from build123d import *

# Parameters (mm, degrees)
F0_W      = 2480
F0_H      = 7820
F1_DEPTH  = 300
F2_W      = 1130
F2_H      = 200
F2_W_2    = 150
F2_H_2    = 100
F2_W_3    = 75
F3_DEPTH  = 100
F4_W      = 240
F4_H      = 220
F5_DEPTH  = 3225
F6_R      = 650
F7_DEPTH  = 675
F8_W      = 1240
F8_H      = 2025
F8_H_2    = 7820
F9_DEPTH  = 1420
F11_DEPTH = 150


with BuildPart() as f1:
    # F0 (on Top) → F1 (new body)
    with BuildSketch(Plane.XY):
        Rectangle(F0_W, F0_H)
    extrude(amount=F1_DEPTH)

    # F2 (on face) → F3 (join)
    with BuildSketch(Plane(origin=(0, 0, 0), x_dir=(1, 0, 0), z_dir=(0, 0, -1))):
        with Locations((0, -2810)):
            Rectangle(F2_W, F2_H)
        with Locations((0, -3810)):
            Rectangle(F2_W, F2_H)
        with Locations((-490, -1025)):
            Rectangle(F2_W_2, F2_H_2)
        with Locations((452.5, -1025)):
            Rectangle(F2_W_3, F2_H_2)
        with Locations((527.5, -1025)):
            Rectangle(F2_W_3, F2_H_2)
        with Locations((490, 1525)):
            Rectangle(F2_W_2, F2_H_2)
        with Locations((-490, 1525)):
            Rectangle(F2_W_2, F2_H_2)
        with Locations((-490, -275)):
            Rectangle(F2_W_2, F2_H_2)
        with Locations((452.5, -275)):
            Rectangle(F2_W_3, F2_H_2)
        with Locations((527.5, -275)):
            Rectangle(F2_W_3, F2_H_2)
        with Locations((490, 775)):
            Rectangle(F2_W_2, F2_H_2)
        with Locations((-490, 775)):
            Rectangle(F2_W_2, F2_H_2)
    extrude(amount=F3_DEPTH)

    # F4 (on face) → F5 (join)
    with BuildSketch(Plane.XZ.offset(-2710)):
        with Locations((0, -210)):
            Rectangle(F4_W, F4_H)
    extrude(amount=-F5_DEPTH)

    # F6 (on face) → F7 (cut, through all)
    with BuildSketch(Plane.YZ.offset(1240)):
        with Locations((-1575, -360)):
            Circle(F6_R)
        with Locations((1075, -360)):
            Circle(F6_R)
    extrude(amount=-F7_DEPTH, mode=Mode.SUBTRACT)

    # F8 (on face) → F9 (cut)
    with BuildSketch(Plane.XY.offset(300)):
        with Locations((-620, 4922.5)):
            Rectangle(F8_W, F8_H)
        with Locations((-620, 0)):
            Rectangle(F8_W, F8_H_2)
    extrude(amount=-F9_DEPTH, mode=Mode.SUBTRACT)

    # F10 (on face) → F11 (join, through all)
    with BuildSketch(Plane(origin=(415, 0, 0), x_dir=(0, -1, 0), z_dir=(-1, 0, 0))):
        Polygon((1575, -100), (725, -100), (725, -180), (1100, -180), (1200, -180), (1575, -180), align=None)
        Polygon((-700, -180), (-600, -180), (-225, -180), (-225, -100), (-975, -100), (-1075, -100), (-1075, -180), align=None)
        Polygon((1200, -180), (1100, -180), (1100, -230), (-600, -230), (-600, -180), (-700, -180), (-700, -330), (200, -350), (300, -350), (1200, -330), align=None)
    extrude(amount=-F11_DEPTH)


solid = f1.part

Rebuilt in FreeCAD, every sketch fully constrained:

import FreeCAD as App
import Part
import Sketcher
from FreeCAD import Vector

doc = App.newDocument("Part")
params = doc.addObject("Spreadsheet::Sheet", "Params")
for row, (alias, value) in enumerate([
    ("sketch1_width", "2480 mm"),
    ("sketch1_height", "7820 mm"),
    ("pad1_length", "300 mm"),
    ("sketch2_width", "1130 mm"),
    ("sketch2_width2", "150 mm"),
    ("sketch2_height", "200 mm"),
    ("sketch2_height2", "100 mm"),
    ("pad2_length", "100 mm"),
    ("sketch3_width", "240 mm"),
    ("sketch3_height", "220 mm"),
    ("pad3_length", "3225 mm"),
    ("sketch4_diameter", "1300 mm"),
    ("pocket1_length", "675 mm"),
    ("sketch5_width", "1240 mm"),
    ("sketch5_height", "9845 mm"),
    ("pocket2_length", "1420 mm"),
    ("sketch6_width", "850 mm"),
    ("sketch6_width2", "375 mm"),
    ("sketch6_width3", "1700 mm"),
    ("sketch6_width4", "100 mm"),
    ("sketch6_height", "80 mm"),
    ("pad4_length", "150 mm"),
], start=1):
    params.set(f"A{row}", alias)
    params.set(f"B{row}", "=" + value)
    params.setAlias(f"B{row}", alias)

body = doc.addObject("PartDesign::Body", "Body")

sketch1 = doc.addObject("Sketcher::SketchObject", "Sketch")
body.addObject(sketch1)
sketch1.AttachmentSupport = (doc.XY_Plane, [""])
sketch1.MapMode = "FlatFace"
sketch1.addGeometry([
    Part.LineSegment(Vector(-1240, 3910, 0), Vector(-1240, -3910, 0)),
    Part.LineSegment(Vector(-1240, -3910, 0), Vector(1240, -3910, 0)),
    Part.LineSegment(Vector(1240, -3910, 0), Vector(1240, 3910, 0)),
    Part.LineSegment(Vector(1240, 3910, 0), Vector(-1240, 3910, 0)),
], False)
sketch1.addConstraint([
    Sketcher.Constraint("Coincident", 0, 2, 1, 1),
    Sketcher.Constraint("Coincident", 1, 2, 2, 1),
    Sketcher.Constraint("Coincident", 2, 2, 3, 1),
    Sketcher.Constraint("Coincident", 3, 2, 0, 1),
    Sketcher.Constraint("Vertical", 0),
    Sketcher.Constraint("Horizontal", 1),
    Sketcher.Constraint("Vertical", 2),
    Sketcher.Constraint("Horizontal", 3),
    Sketcher.Constraint("Symmetric", 0, 2, 2, 2, -1, 1),
    Sketcher.Constraint("DistanceX", 1, 1, 1, 2, 2480.0),
    Sketcher.Constraint("DistanceY", 0, 2, 0, 1, 7820.0),
])
sketch1.setExpression("Constraints[9]", "Params.sketch1_width")
sketch1.setExpression("Constraints[10]", "Params.sketch1_height")
pad1 = doc.addObject("PartDesign::Pad", "Pad")
body.addObject(pad1)
pad1.Profile = sketch1
pad1.setExpression("Length", "Params.pad1_length")

sketch2 = doc.addObject("Sketcher::SketchObject", "Sketch001")
body.addObject(sketch2)
sketch2.AttachmentSupport = (doc.XY_Plane, [""])
sketch2.MapMode = "FlatFace"
sketch2.addGeometry([
    Part.LineSegment(Vector(-565, 2710, 0), Vector(-565, 2910, 0)),
    Part.LineSegment(Vector(-565, 2910, 0), Vector(565, 2910, 0)),
    Part.LineSegment(Vector(565, 2910, 0), Vector(565, 2710, 0)),
    Part.LineSegment(Vector(565, 2710, 0), Vector(-565, 2710, 0)),
    Part.LineSegment(Vector(-565, 3710, 0), Vector(-565, 3910, 0)),
    Part.LineSegment(Vector(-565, 3910, 0), Vector(565, 3910, 0)),
    Part.LineSegment(Vector(565, 3910, 0), Vector(565, 3710, 0)),
    Part.LineSegment(Vector(565, 3710, 0), Vector(-565, 3710, 0)),
    Part.LineSegment(Vector(-565, 975, 0), Vector(-565, 1075, 0)),
    Part.LineSegment(Vector(-565, 1075, 0), Vector(-415, 1075, 0)),
    Part.LineSegment(Vector(-415, 1075, 0), Vector(-415, 975, 0)),
    Part.LineSegment(Vector(-415, 975, 0), Vector(-565, 975, 0)),
    Part.LineSegment(Vector(415, 975, 0), Vector(415, 1075, 0)),
    Part.LineSegment(Vector(415, 1075, 0), Vector(565, 1075, 0)),
    Part.LineSegment(Vector(565, 1075, 0), Vector(565, 975, 0)),
    Part.LineSegment(Vector(565, 975, 0), Vector(415, 975, 0)),
    Part.LineSegment(Vector(415, -1575, 0), Vector(415, -1475, 0)),
    Part.LineSegment(Vector(415, -1475, 0), Vector(565, -1475, 0)),
    Part.LineSegment(Vector(565, -1475, 0), Vector(565, -1575, 0)),
    Part.LineSegment(Vector(565, -1575, 0), Vector(415, -1575, 0)),
    Part.LineSegment(Vector(-565, -1575, 0), Vector(-565, -1475, 0)),
    Part.LineSegment(Vector(-565, -1475, 0), Vector(-415, -1475, 0)),
    Part.LineSegment(Vector(-415, -1475, 0), Vector(-415, -1575, 0)),
    Part.LineSegment(Vector(-415, -1575, 0), Vector(-565, -1575, 0)),
    Part.LineSegment(Vector(-565, 225, 0), Vector(-565, 325, 0)),
    Part.LineSegment(Vector(-565, 325, 0), Vector(-415, 325, 0)),
    Part.LineSegment(Vector(-415, 325, 0), Vector(-415, 225, 0)),
    Part.LineSegment(Vector(-415, 225, 0), Vector(-565, 225, 0)),
    Part.LineSegment(Vector(415, 225, 0), Vector(415, 325, 0)),
    Part.LineSegment(Vector(415, 325, 0), Vector(565, 325, 0)),
    Part.LineSegment(Vector(565, 325, 0), Vector(565, 225, 0)),
    Part.LineSegment(Vector(565, 225, 0), Vector(415, 225, 0)),
    Part.LineSegment(Vector(415, -825, 0), Vector(415, -725, 0)),
    Part.LineSegment(Vector(415, -725, 0), Vector(565, -725, 0)),
    Part.LineSegment(Vector(565, -725, 0), Vector(565, -825, 0)),
    Part.LineSegment(Vector(565, -825, 0), Vector(415, -825, 0)),
    Part.LineSegment(Vector(-565, -825, 0), Vector(-565, -725, 0)),
    Part.LineSegment(Vector(-565, -725, 0), Vector(-415, -725, 0)),
    Part.LineSegment(Vector(-415, -725, 0), Vector(-415, -825, 0)),
    Part.LineSegment(Vector(-415, -825, 0), Vector(-565, -825, 0)),
], False)
sketch2.addConstraint([
    Sketcher.Constraint("Coincident", 0, 2, 1, 1),
    Sketcher.Constraint("Coincident", 1, 2, 2, 1),
    Sketcher.Constraint("Coincident", 2, 2, 3, 1),
    Sketcher.Constraint("Coincident", 3, 2, 0, 1),
    Sketcher.Constraint("Coincident", 4, 2, 5, 1),
    Sketcher.Constraint("Coincident", 5, 2, 6, 1),
    Sketcher.Constraint("Coincident", 6, 2, 7, 1),
    Sketcher.Constraint("Coincident", 7, 2, 4, 1),
    Sketcher.Constraint("Coincident", 8, 2, 9, 1),
    Sketcher.Constraint("Coincident", 9, 2, 10, 1),
    Sketcher.Constraint("Coincident", 10, 2, 11, 1),
    Sketcher.Constraint("Coincident", 11, 2, 8, 1),
    Sketcher.Constraint("Coincident", 12, 2, 13, 1),
    Sketcher.Constraint("Coincident", 13, 2, 14, 1),
    Sketcher.Constraint("Coincident", 14, 2, 15, 1),
    Sketcher.Constraint("Coincident", 15, 2, 12, 1),
    Sketcher.Constraint("Coincident", 16, 2, 17, 1),
    Sketcher.Constraint("Coincident", 17, 2, 18, 1),
    Sketcher.Constraint("Coincident", 18, 2, 19, 1),
    Sketcher.Constraint("Coincident", 19, 2, 16, 1),
    Sketcher.Constraint("Coincident", 20, 2, 21, 1),
    Sketcher.Constraint("Coincident", 21, 2, 22, 1),
    Sketcher.Constraint("Coincident", 22, 2, 23, 1),
    Sketcher.Constraint("Coincident", 23, 2, 20, 1),
    Sketcher.Constraint("Coincident", 24, 2, 25, 1),
    Sketcher.Constraint("Coincident", 25, 2, 26, 1),
    Sketcher.Constraint("Coincident", 26, 2, 27, 1),
    Sketcher.Constraint("Coincident", 27, 2, 24, 1),
    Sketcher.Constraint("Coincident", 28, 2, 29, 1),
    Sketcher.Constraint("Coincident", 29, 2, 30, 1),
    Sketcher.Constraint("Coincident", 30, 2, 31, 1),
    Sketcher.Constraint("Coincident", 31, 2, 28, 1),
    Sketcher.Constraint("Coincident", 32, 2, 33, 1),
    Sketcher.Constraint("Coincident", 33, 2, 34, 1),
    Sketcher.Constraint("Coincident", 34, 2, 35, 1),
    Sketcher.Constraint("Coincident", 35, 2, 32, 1),
    Sketcher.Constraint("Coincident", 36, 2, 37, 1),
    Sketcher.Constraint("Coincident", 37, 2, 38, 1),
    Sketcher.Constraint("Coincident", 38, 2, 39, 1),
    Sketcher.Constraint("Coincident", 39, 2, 36, 1),
    Sketcher.Constraint("Vertical", 0),
    Sketcher.Constraint("Horizontal", 1),
    Sketcher.Constraint("Vertical", 2),
    Sketcher.Constraint("Horizontal", 3),
    Sketcher.Constraint("Vertical", 4),
    Sketcher.Constraint("Horizontal", 5),
    Sketcher.Constraint("Vertical", 6),
    Sketcher.Constraint("Horizontal", 7),
    Sketcher.Constraint("Vertical", 8),
    Sketcher.Constraint("Horizontal", 9),
    Sketcher.Constraint("Vertical", 10),
    Sketcher.Constraint("Horizontal", 11),
    Sketcher.Constraint("Vertical", 12),
    Sketcher.Constraint("Horizontal", 13),
    Sketcher.Constraint("Vertical", 14),
    Sketcher.Constraint("Horizontal", 15),
    Sketcher.Constraint("Vertical", 16),
    Sketcher.Constraint("Horizontal", 17),
    Sketcher.Constraint("Vertical", 18),
    Sketcher.Constraint("Horizontal", 19),
    Sketcher.Constraint("Vertical", 20),
    Sketcher.Constraint("Horizontal", 21),
    Sketcher.Constraint("Vertical", 22),
    Sketcher.Constraint("Horizontal", 23),
    Sketcher.Constraint("Vertical", 24),
    Sketcher.Constraint("Horizontal", 25),
    Sketcher.Constraint("Vertical", 26),
    Sketcher.Constraint("Horizontal", 27),
    Sketcher.Constraint("Vertical", 28),
    Sketcher.Constraint("Horizontal", 29),
    Sketcher.Constraint("Vertical", 30),
    Sketcher.Constraint("Horizontal", 31),
    Sketcher.Constraint("Vertical", 32),
    Sketcher.Constraint("Horizontal", 33),
    Sketcher.Constraint("Vertical", 34),
    Sketcher.Constraint("Horizontal", 35),
    Sketcher.Constraint("Vertical", 36),
    Sketcher.Constraint("Horizontal", 37),
    Sketcher.Constraint("Vertical", 38),
    Sketcher.Constraint("Horizontal", 39),
    Sketcher.Constraint("Symmetric", 9, 2, 12, 2, -2),
    Sketcher.Constraint("Symmetric", 11, 2, 14, 2, -2),
    Sketcher.Constraint("Symmetric", 17, 2, 20, 2, -2),
    Sketcher.Constraint("Symmetric", 19, 2, 22, 2, -2),
    Sketcher.Constraint("Symmetric", 25, 2, 28, 2, -2),
    Sketcher.Constraint("Symmetric", 27, 2, 30, 2, -2),
    Sketcher.Constraint("Symmetric", 33, 2, 36, 2, -2),
    Sketcher.Constraint("Symmetric", 35, 2, 38, 2, -2),
    Sketcher.Constraint("Vertical", 3, 2, 4, 2),
    Sketcher.Constraint("Vertical", 2, 2, 5, 2),
    Sketcher.Constraint("Vertical", 7, 2, 8, 2),
    Sketcher.Constraint("Vertical", 6, 2, 13, 2),
    Sketcher.Constraint("Vertical", 15, 2, 16, 2),
    Sketcher.Constraint("Vertical", 14, 2, 17, 2),
    Sketcher.Constraint("Vertical", 23, 2, 24, 2),
    Sketcher.Constraint("Vertical", 22, 2, 25, 2),
    Sketcher.Constraint("Vertical", 31, 2, 32, 2),
    Sketcher.Constraint("Vertical", 30, 2, 33, 2),
    Sketcher.Constraint("Equal", 2, 4),
    Sketcher.Constraint("Equal", 14, 16),
    Sketcher.Constraint("Equal", 22, 24),
    Sketcher.Constraint("Equal", 30, 32),
    Sketcher.Constraint("DistanceX", 1, 1, 1, 2, 1130.0),
    Sketcher.Constraint("DistanceX", 9, 1, 9, 2, 150.0),
    Sketcher.Constraint("DistanceY", 0, 1, 0, 2, 200.0),
    Sketcher.Constraint("DistanceY", 8, 1, 8, 2, 100.0),
    Sketcher.Constraint("DistanceY", -1, 1, 0, 2, 2910.0),
    Sketcher.Constraint("DistanceY", -1, 1, 4, 2, 3910.0),
    Sketcher.Constraint("DistanceY", -1, 1, 8, 2, 1075.0),
    Sketcher.Constraint("DistanceY", 16, 2, -1, 1, 1475.0),
    Sketcher.Constraint("DistanceY", -1, 1, 24, 2, 325.0),
    Sketcher.Constraint("DistanceY", 32, 2, -1, 1, 725.0),
])
sketch2.setExpression("Constraints[102]", "Params.sketch2_width")
sketch2.setExpression("Constraints[103]", "Params.sketch2_width2")
sketch2.setExpression("Constraints[104]", "Params.sketch2_height")
sketch2.setExpression("Constraints[105]", "Params.sketch2_height2")
pad2 = doc.addObject("PartDesign::Pad", "Pad001")
body.addObject(pad2)
pad2.Profile = sketch2
pad2.setExpression("Length", "Params.pad2_length")
pad2.Reversed = True

sketch3 = doc.addObject("Sketcher::SketchObject", "Sketch002")
body.addObject(sketch3)
sketch3.AttachmentSupport = (doc.XZ_Plane, [""])
sketch3.MapMode = "FlatFace"
sketch3.AttachmentOffset = App.Placement(Vector(0, 0, -2710), App.Rotation())
sketch3.addGeometry([
    Part.LineSegment(Vector(-120, -100, 0), Vector(-120, -320, 0)),
    Part.LineSegment(Vector(-120, -320, 0), Vector(120, -320, 0)),
    Part.LineSegment(Vector(120, -320, 0), Vector(120, -100, 0)),
    Part.LineSegment(Vector(120, -100, 0), Vector(-120, -100, 0)),
], False)
sketch3.addConstraint([
    Sketcher.Constraint("Coincident", 0, 2, 1, 1),
    Sketcher.Constraint("Coincident", 1, 2, 2, 1),
    Sketcher.Constraint("Coincident", 2, 2, 3, 1),
    Sketcher.Constraint("Coincident", 3, 2, 0, 1),
    Sketcher.Constraint("Vertical", 0),
    Sketcher.Constraint("Horizontal", 1),
    Sketcher.Constraint("Vertical", 2),
    Sketcher.Constraint("Horizontal", 3),
    Sketcher.Constraint("DistanceX", 1, 1, 1, 2, 240.0),
    Sketcher.Constraint("DistanceY", 0, 2, 0, 1, 220.0),
    Sketcher.Constraint("DistanceX", 0, 2, -1, 1, 120.0),
    Sketcher.Constraint("DistanceY", 0, 2, -1, 1, 320.0),
])
sketch3.setExpression("Constraints[8]", "Params.sketch3_width")
sketch3.setExpression("Constraints[9]", "Params.sketch3_height")
pad3 = doc.addObject("PartDesign::Pad", "Pad002")
body.addObject(pad3)
pad3.Profile = sketch3
pad3.setExpression("Length", "Params.pad3_length")
pad3.Reversed = True

sketch4 = doc.addObject("Sketcher::SketchObject", "Sketch003")
body.addObject(sketch4)
sketch4.AttachmentSupport = (doc.YZ_Plane, [""])
sketch4.MapMode = "FlatFace"
sketch4.AttachmentOffset = App.Placement(Vector(0, 0, 1240), App.Rotation())
sketch4.addGeometry([
    Part.Circle(Vector(-1575, -360, 0), Vector(0, 0, 1), 650),
    Part.Circle(Vector(1075, -360, 0), Vector(0, 0, 1), 650),
], False)
sketch4.addConstraint([
    Sketcher.Constraint("Equal", 0, 1),
    Sketcher.Constraint("Horizontal", 0, 3, 1, 3),
    Sketcher.Constraint("Diameter", 0, 1300.0),
    Sketcher.Constraint("DistanceX", 0, 3, -1, 1, 1575.0),
    Sketcher.Constraint("DistanceY", 0, 3, -1, 1, 360.0),
    Sketcher.Constraint("DistanceX", -1, 1, 1, 3, 1075.0),
])
sketch4.setExpression("Constraints[2]", "Params.sketch4_diameter")
pocket1 = doc.addObject("PartDesign::Pocket", "Pocket")
body.addObject(pocket1)
pocket1.Profile = sketch4
pocket1.setExpression("Length", "Params.pocket1_length")

sketch5 = doc.addObject("Sketcher::SketchObject", "Sketch004")
body.addObject(sketch5)
sketch5.AttachmentSupport = (doc.XY_Plane, [""])
sketch5.MapMode = "FlatFace"
sketch5.AttachmentOffset = App.Placement(Vector(0, 0, 300), App.Rotation())
sketch5.addGeometry([
    Part.LineSegment(Vector(-1240, 5935, 0), Vector(-1240, -3910, 0)),
    Part.LineSegment(Vector(-1240, -3910, 0), Vector(0, -3910, 0)),
    Part.LineSegment(Vector(0, -3910, 0), Vector(0, 5935, 0)),
    Part.LineSegment(Vector(0, 5935, 0), Vector(-1240, 5935, 0)),
], False)
sketch5.addConstraint([
    Sketcher.Constraint("Coincident", 0, 2, 1, 1),
    Sketcher.Constraint("Coincident", 1, 2, 2, 1),
    Sketcher.Constraint("Coincident", 2, 2, 3, 1),
    Sketcher.Constraint("Coincident", 3, 2, 0, 1),
    Sketcher.Constraint("Vertical", 0),
    Sketcher.Constraint("Horizontal", 1),
    Sketcher.Constraint("Vertical", 2),
    Sketcher.Constraint("Horizontal", 3),
    Sketcher.Constraint("PointOnObject", 1, 2, -2),
    Sketcher.Constraint("DistanceX", 1, 1, 1, 2, 1240.0),
    Sketcher.Constraint("DistanceY", 0, 2, 0, 1, 9845.0),
    Sketcher.Constraint("DistanceY", 0, 2, -1, 1, 3910.0),
])
sketch5.setExpression("Constraints[9]", "Params.sketch5_width")
sketch5.setExpression("Constraints[10]", "Params.sketch5_height")
pocket2 = doc.addObject("PartDesign::Pocket", "Pocket001")
body.addObject(pocket2)
pocket2.Profile = sketch5
pocket2.setExpression("Length", "Params.pocket2_length")

sketch6 = doc.addObject("Sketcher::SketchObject", "Sketch005")
body.addObject(sketch6)
sketch6.AttachmentSupport = (doc.YZ_Plane, [""])
sketch6.MapMode = "FlatFace"
sketch6.AttachmentOffset = App.Placement(Vector(0, 0, 415), App.Rotation())
sketch6.addGeometry([
    Part.LineSegment(Vector(-1575, -100, 0), Vector(-725, -100, 0)),
    Part.LineSegment(Vector(-725, -100, 0), Vector(-725, -180, 0)),
    Part.LineSegment(Vector(-725, -180, 0), Vector(-1100, -180, 0)),
    Part.LineSegment(Vector(-1100, -180, 0), Vector(-1100, -230, 0)),
    Part.LineSegment(Vector(-1100, -230, 0), Vector(600, -230, 0)),
    Part.LineSegment(Vector(600, -230, 0), Vector(600, -180, 0)),
    Part.LineSegment(Vector(600, -180, 0), Vector(225, -180, 0)),
    Part.LineSegment(Vector(225, -180, 0), Vector(225, -100, 0)),
    Part.LineSegment(Vector(225, -100, 0), Vector(1075, -100, 0)),
    Part.LineSegment(Vector(1075, -100, 0), Vector(1075, -180, 0)),
    Part.LineSegment(Vector(1075, -180, 0), Vector(700, -180, 0)),
    Part.LineSegment(Vector(700, -180, 0), Vector(700, -330, 0)),
    Part.LineSegment(Vector(700, -330, 0), Vector(-200, -350, 0)),
    Part.LineSegment(Vector(-200, -350, 0), Vector(-300, -350, 0)),
    Part.LineSegment(Vector(-300, -350, 0), Vector(-1200, -330, 0)),
    Part.LineSegment(Vector(-1200, -330, 0), Vector(-1200, -180, 0)),
    Part.LineSegment(Vector(-1200, -180, 0), Vector(-1575, -180, 0)),
    Part.LineSegment(Vector(-1575, -180, 0), Vector(-1575, -100, 0)),
], False)
sketch6.addConstraint([
    Sketcher.Constraint("Coincident", 0, 2, 1, 1),
    Sketcher.Constraint("Coincident", 1, 2, 2, 1),
    Sketcher.Constraint("Coincident", 2, 2, 3, 1),
    Sketcher.Constraint("Coincident", 3, 2, 4, 1),
    Sketcher.Constraint("Coincident", 4, 2, 5, 1),
    Sketcher.Constraint("Coincident", 5, 2, 6, 1),
    Sketcher.Constraint("Coincident", 6, 2, 7, 1),
    Sketcher.Constraint("Coincident", 7, 2, 8, 1),
    Sketcher.Constraint("Coincident", 8, 2, 9, 1),
    Sketcher.Constraint("Coincident", 9, 2, 10, 1),
    Sketcher.Constraint("Coincident", 10, 2, 11, 1),
    Sketcher.Constraint("Coincident", 11, 2, 12, 1),
    Sketcher.Constraint("Coincident", 12, 2, 13, 1),
    Sketcher.Constraint("Coincident", 13, 2, 14, 1),
    Sketcher.Constraint("Coincident", 14, 2, 15, 1),
    Sketcher.Constraint("Coincident", 15, 2, 16, 1),
    Sketcher.Constraint("Coincident", 16, 2, 17, 1),
    Sketcher.Constraint("Coincident", 17, 2, 0, 1),
    Sketcher.Constraint("Horizontal", 0),
    Sketcher.Constraint("Vertical", 1),
    Sketcher.Constraint("Horizontal", 2),
    Sketcher.Constraint("Vertical", 3),
    Sketcher.Constraint("Horizontal", 4),
    Sketcher.Constraint("Vertical", 5),
    Sketcher.Constraint("Horizontal", 6),
    Sketcher.Constraint("Vertical", 7),
    Sketcher.Constraint("Horizontal", 8),
    Sketcher.Constraint("Vertical", 9),
    Sketcher.Constraint("Horizontal", 10),
    Sketcher.Constraint("Vertical", 11),
    Sketcher.Constraint("Horizontal", 13),
    Sketcher.Constraint("Vertical", 15),
    Sketcher.Constraint("Horizontal", 16),
    Sketcher.Constraint("Vertical", 17),
    Sketcher.Constraint("Horizontal", 2, 2, 5, 2),
    Sketcher.Constraint("Horizontal", 0, 2, 7, 2),
    Sketcher.Constraint("Horizontal", 6, 2, 9, 2),
    Sketcher.Constraint("Horizontal", 11, 2, 14, 2),
    Sketcher.Constraint("Horizontal", 10, 2, 15, 2),
    Sketcher.Constraint("Equal", 2, 6),
    Sketcher.Constraint("Equal", 0, 8),
    Sketcher.Constraint("Equal", 6, 10),
    Sketcher.Constraint("Equal", 10, 16),
    Sketcher.Constraint("Equal", 12, 14),
    Sketcher.Constraint("DistanceX", 0, 1, 0, 2, 850.0),
    Sketcher.Constraint("DistanceX", 2, 2, 2, 1, 375.0),
    Sketcher.Constraint("DistanceX", 4, 1, 4, 2, 1700.0),
    Sketcher.Constraint("DistanceX", 13, 2, 13, 1, 100.0),
    Sketcher.Constraint("DistanceY", 1, 2, 1, 1, 80.0),
    Sketcher.Constraint("DistanceY", 3, 2, 3, 1, 50.0),
    Sketcher.Constraint("DistanceY", 11, 2, 11, 1, 150.0),
    Sketcher.Constraint("DistanceX", 0, 2, -1, 1, 725.0),
    Sketcher.Constraint("DistanceY", 0, 2, -1, 1, 100.0),
    Sketcher.Constraint("DistanceY", 12, 2, -1, 1, 350.0),
])
sketch6.setExpression("Constraints[44]", "Params.sketch6_width")
sketch6.setExpression("Constraints[45]", "Params.sketch6_width2")
sketch6.setExpression("Constraints[46]", "Params.sketch6_width3")
sketch6.setExpression("Constraints[47]", "Params.sketch6_width4")
sketch6.setExpression("Constraints[48]", "Params.sketch6_height")
pad4 = doc.addObject("PartDesign::Pad", "Pad003")
body.addObject(pad4)
pad4.Profile = sketch6
pad4.setExpression("Length", "Params.pad4_length")

doc.recompute()
